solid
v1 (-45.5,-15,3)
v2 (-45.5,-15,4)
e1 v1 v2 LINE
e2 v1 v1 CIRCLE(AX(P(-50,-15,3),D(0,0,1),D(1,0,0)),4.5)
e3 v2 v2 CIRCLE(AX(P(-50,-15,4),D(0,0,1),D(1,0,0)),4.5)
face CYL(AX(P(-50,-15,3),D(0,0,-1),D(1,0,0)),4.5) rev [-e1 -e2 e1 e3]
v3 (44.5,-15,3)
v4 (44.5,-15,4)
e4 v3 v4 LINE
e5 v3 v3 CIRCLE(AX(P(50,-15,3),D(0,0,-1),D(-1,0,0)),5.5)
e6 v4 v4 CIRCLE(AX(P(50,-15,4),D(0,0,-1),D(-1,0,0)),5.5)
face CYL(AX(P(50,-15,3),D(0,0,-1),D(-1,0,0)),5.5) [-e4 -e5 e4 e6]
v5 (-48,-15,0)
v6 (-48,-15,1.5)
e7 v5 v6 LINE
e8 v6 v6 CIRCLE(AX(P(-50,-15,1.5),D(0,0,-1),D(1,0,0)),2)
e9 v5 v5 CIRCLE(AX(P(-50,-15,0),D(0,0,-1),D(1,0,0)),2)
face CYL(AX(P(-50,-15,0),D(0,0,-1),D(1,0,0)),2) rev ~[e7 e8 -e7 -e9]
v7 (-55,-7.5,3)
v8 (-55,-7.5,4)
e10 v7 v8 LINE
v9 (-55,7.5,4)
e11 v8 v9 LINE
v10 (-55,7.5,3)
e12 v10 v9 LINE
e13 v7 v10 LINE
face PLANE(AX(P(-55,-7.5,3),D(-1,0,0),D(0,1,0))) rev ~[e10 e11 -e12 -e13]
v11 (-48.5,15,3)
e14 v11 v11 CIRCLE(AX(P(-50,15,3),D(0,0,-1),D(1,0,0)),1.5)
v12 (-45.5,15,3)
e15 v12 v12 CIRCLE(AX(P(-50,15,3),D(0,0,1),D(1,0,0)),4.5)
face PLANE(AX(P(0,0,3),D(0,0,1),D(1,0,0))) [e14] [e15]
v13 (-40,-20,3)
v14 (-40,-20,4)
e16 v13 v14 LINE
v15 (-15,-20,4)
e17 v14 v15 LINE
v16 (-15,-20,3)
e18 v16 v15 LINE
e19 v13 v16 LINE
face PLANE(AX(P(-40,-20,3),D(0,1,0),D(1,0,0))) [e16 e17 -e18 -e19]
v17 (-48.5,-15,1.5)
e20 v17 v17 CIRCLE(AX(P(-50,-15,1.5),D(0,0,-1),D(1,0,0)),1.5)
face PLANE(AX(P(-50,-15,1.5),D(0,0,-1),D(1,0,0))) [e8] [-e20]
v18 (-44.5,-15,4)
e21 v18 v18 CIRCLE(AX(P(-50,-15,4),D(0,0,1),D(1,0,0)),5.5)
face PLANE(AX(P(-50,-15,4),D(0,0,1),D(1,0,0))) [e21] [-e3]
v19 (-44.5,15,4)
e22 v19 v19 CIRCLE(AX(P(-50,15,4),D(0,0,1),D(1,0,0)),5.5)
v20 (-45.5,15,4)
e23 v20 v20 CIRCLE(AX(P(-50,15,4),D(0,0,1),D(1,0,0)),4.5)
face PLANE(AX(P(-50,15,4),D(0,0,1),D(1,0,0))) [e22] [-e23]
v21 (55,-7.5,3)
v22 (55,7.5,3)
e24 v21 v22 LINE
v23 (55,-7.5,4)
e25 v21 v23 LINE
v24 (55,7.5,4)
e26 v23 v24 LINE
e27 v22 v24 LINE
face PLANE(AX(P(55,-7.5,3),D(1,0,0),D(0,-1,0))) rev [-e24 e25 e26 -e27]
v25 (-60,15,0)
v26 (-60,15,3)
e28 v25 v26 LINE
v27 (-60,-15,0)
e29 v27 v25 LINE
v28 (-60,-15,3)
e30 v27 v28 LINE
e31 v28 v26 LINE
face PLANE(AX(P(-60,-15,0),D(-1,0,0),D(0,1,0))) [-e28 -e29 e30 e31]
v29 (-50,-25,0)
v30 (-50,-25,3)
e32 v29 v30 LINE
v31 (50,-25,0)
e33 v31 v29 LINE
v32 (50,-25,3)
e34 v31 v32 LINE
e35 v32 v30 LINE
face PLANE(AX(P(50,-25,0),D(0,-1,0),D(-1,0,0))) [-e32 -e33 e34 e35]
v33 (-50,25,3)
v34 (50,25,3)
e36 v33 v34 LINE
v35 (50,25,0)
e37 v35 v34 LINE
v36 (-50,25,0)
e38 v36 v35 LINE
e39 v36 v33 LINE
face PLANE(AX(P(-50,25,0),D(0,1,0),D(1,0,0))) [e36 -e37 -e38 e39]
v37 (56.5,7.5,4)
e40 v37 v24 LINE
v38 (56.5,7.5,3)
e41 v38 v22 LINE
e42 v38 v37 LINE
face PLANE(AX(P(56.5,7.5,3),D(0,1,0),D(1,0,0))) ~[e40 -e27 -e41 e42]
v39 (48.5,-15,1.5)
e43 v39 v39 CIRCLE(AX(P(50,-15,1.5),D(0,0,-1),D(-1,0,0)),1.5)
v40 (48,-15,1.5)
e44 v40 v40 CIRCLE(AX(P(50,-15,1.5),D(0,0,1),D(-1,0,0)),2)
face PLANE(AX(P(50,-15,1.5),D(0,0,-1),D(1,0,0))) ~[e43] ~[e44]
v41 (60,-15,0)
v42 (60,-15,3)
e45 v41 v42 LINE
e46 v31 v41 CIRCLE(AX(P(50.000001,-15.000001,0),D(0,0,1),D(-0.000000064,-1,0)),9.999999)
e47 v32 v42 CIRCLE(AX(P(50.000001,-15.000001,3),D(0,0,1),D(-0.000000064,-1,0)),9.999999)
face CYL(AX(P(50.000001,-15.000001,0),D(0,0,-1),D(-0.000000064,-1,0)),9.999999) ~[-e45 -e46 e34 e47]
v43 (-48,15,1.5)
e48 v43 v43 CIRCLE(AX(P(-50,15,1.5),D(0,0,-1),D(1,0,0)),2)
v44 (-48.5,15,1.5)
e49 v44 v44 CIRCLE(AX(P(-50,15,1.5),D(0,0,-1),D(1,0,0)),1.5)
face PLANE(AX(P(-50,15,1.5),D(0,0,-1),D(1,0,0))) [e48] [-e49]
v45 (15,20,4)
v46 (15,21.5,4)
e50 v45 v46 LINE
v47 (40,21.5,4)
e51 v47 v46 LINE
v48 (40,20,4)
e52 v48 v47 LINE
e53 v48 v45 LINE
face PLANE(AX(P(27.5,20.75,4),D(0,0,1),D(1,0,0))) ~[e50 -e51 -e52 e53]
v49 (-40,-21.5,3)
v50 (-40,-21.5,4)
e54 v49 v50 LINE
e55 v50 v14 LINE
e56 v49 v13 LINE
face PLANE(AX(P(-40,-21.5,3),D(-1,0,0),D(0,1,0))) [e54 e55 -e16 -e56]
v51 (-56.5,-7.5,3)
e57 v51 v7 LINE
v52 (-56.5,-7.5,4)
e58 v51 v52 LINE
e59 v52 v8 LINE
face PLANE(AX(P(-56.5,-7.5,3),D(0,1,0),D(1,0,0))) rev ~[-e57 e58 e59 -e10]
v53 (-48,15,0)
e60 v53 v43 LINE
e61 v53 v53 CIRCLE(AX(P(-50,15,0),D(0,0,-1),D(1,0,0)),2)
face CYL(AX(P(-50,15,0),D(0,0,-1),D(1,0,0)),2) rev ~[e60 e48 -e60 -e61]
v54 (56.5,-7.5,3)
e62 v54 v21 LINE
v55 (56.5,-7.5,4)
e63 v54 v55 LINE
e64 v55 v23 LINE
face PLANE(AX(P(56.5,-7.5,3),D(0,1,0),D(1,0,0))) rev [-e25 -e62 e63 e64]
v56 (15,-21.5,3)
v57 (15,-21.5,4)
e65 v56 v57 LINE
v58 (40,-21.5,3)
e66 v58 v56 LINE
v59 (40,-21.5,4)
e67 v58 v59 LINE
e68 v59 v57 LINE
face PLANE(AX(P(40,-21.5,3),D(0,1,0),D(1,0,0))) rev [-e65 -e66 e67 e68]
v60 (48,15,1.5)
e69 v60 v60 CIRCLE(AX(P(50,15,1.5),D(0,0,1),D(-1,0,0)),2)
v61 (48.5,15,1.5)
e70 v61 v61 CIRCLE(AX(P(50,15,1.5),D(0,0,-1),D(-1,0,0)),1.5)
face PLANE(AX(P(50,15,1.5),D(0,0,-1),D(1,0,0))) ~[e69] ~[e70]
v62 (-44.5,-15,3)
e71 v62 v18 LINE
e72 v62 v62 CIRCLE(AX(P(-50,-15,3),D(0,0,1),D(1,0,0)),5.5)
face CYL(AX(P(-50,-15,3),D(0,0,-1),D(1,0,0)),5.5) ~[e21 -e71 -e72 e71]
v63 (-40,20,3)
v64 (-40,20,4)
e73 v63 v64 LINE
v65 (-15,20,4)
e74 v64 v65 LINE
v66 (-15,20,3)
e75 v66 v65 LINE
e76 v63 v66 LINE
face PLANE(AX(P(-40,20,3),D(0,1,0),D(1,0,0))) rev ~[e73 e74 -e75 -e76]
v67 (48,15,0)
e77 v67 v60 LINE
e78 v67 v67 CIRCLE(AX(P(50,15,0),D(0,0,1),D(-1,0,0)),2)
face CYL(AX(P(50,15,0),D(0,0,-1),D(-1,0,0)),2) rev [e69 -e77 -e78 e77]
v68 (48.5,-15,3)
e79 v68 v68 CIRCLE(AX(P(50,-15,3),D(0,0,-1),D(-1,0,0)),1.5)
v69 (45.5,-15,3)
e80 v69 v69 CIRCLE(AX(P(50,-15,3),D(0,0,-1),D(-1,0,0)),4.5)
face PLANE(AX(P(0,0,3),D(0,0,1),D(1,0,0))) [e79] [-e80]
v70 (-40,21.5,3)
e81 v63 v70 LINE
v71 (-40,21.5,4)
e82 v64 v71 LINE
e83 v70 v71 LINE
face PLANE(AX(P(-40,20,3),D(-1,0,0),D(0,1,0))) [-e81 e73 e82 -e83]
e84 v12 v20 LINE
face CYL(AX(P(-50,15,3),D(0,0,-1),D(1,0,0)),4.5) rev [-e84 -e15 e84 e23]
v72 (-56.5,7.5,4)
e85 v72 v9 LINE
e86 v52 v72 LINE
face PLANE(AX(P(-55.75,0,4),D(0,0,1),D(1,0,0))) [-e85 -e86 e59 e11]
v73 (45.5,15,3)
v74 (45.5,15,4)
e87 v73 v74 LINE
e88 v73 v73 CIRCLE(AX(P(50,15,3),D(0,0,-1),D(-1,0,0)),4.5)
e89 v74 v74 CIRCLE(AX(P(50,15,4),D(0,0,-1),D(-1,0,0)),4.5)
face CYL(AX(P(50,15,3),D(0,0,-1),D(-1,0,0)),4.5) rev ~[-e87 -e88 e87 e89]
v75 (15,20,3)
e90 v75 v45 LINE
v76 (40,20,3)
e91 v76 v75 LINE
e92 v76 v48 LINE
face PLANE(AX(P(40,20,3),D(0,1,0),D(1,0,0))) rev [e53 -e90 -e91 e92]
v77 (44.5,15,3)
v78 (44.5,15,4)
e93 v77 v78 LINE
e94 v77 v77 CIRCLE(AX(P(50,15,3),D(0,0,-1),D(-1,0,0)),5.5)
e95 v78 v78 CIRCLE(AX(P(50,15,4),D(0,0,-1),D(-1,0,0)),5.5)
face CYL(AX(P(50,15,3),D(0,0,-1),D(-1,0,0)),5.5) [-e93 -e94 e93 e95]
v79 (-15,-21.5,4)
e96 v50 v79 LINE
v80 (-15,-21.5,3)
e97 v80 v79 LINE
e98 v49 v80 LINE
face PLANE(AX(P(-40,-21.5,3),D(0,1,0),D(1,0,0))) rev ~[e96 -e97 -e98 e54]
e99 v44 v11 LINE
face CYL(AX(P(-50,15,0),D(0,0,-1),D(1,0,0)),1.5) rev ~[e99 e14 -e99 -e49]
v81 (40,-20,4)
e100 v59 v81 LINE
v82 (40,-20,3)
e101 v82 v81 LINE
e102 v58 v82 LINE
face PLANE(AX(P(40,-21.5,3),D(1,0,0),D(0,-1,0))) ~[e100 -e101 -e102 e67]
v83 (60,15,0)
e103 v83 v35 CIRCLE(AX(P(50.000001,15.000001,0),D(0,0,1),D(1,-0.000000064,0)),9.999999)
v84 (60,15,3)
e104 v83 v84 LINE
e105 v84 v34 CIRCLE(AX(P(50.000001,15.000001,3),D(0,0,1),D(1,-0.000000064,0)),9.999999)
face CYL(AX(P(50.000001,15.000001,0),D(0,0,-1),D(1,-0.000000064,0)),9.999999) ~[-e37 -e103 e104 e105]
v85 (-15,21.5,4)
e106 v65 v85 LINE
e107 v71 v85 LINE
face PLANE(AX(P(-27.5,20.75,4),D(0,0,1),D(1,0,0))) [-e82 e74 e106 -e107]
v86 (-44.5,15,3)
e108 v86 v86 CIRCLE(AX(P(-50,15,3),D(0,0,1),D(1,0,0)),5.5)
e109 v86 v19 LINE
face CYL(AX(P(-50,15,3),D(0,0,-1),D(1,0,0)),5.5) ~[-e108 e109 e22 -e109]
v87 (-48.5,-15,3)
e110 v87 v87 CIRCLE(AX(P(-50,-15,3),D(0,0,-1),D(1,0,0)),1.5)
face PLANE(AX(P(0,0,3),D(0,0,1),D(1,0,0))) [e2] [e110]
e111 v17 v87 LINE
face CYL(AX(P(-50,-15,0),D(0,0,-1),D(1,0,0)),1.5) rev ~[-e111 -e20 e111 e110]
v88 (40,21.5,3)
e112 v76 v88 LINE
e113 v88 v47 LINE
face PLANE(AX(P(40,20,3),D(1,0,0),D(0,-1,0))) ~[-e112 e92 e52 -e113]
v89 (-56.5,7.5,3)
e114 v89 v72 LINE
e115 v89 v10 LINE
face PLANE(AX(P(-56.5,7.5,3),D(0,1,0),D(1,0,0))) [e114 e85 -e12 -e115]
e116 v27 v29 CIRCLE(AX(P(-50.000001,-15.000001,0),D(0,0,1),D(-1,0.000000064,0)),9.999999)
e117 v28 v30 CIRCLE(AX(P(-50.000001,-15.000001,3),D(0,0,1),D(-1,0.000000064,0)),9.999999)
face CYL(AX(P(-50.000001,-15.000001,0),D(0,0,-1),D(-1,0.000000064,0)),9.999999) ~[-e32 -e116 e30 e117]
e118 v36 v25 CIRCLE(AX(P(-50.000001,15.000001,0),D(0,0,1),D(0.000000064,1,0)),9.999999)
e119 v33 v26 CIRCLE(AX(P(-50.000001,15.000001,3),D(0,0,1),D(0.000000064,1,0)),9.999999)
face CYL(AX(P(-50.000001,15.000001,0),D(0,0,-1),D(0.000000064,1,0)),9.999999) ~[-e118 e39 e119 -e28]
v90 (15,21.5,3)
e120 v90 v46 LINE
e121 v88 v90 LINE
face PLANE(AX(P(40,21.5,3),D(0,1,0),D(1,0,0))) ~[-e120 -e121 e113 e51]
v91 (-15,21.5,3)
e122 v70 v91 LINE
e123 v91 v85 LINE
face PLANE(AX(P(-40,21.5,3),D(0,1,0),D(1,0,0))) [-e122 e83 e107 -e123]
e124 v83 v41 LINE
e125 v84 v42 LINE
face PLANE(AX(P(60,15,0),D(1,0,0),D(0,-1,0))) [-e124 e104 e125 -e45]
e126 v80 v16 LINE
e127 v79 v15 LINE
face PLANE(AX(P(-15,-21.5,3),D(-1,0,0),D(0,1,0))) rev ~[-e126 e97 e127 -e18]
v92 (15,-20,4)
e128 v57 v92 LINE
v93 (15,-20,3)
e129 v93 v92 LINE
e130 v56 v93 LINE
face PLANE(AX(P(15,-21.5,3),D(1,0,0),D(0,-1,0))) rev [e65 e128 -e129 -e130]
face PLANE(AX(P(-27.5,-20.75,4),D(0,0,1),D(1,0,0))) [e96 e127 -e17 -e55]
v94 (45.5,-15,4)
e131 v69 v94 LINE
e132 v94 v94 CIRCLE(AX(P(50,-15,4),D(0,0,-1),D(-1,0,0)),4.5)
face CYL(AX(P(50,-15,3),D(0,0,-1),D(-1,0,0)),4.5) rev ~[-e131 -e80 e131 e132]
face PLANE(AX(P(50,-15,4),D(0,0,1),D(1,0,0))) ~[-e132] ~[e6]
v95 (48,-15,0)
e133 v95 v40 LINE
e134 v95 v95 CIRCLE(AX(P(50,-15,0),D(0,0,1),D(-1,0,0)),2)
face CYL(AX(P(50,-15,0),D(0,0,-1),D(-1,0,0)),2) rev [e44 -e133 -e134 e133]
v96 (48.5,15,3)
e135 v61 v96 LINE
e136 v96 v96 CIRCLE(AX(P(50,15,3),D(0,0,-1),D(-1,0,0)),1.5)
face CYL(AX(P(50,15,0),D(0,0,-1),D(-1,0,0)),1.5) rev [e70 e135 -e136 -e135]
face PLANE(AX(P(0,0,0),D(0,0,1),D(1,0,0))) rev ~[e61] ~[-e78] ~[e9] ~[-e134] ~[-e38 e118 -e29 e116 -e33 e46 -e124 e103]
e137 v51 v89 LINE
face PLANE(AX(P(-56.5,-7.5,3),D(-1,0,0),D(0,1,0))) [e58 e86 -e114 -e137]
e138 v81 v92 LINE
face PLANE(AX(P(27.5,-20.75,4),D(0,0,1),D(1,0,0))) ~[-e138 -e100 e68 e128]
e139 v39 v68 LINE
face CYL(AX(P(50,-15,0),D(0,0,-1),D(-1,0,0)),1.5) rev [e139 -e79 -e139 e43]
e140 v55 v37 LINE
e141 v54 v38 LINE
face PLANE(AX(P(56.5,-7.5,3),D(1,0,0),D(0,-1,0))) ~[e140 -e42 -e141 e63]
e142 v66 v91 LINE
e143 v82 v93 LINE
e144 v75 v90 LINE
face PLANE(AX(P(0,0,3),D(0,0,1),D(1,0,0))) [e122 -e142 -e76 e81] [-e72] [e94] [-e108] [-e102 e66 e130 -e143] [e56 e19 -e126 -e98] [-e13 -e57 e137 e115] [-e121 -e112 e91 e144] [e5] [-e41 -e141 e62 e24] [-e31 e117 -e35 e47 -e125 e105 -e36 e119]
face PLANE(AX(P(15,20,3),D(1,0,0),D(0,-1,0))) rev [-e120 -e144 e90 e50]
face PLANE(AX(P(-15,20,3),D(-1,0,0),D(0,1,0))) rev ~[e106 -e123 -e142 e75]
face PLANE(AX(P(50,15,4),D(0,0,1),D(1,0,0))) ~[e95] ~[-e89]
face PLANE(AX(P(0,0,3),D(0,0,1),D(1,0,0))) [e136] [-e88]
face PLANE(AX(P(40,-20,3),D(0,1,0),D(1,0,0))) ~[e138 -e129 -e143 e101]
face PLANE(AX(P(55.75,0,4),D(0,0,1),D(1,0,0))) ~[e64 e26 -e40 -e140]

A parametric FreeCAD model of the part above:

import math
import FreeCAD as App
import Part
import Sketcher

V = App.Vector


def add_polygon(sketch, points):
    """Adds a closed chain of lines whose ends are joined by coincident constraints."""
    first, n = sketch.GeometryCount, len(points)
    for a, b in zip(points, points[1:] + points[:1]):
        sketch.addGeometry(Part.LineSegment(App.Vector(*a, 0), App.Vector(*b, 0)), False)
    for i in range(n):
        sketch.addConstraint(Sketcher.Constraint("Coincident", first + i, 2, first + (i + 1) % n, 1))

doc = App.newDocument("Part")
body = doc.addObject("PartDesign::Body", "Body")

# Sketch on XY plane
sketch1 = doc.addObject("Sketcher::SketchObject", "Sketch")
body.addObject(sketch1)
sketch1.AttachmentSupport = (doc.XY_Plane, [""])
sketch1.MapMode = "FlatFace"
sketch1.addGeometry([
    Part.ArcOfCircle(Part.Circle(V(-50, 15, 0), V(0, 0, 1), 10), math.radians(90), math.radians(180)),  # 0
    Part.LineSegment(V(-60, 15, 0), V(-60, -15, 0)),  # 1
    Part.ArcOfCircle(Part.Circle(V(-50, -15, 0), V(0, 0, 1), 10), math.radians(180), math.radians(270)),  # 2
    Part.LineSegment(V(-50, -25, 0), V(50, -25, 0)),  # 3
    Part.ArcOfCircle(Part.Circle(V(50, -15, 0), V(0, 0, 1), 10), math.radians(-90), math.radians(0)),  # 4
    Part.LineSegment(V(60, -15, 0), V(60, 15, 0)),  # 5
    Part.ArcOfCircle(Part.Circle(V(50, 15, 0), V(0, 0, 1), 10), math.radians(0), math.radians(90)),  # 6
    Part.LineSegment(V(50, 25, 0), V(-50, 25, 0)),  # 7
], False)
sketch1.addConstraint([
    Sketcher.Constraint("Tangent", 0, 2, 1, 1),
    Sketcher.Constraint("Tangent", 1, 2, 2, 1),
    Sketcher.Constraint("Tangent", 2, 2, 3, 1),
    Sketcher.Constraint("Tangent", 3, 2, 4, 1),
    Sketcher.Constraint("Tangent", 4, 2, 5, 1),
    Sketcher.Constraint("Tangent", 5, 2, 6, 1),
    Sketcher.Constraint("Tangent", 6, 2, 7, 1),
    Sketcher.Constraint("Tangent", 7, 2, 0, 1),
    Sketcher.Constraint("Vertical", 1),
    Sketcher.Constraint("Horizontal", 3),
    Sketcher.Constraint("Vertical", 5),
    Sketcher.Constraint("Horizontal", 7),
    Sketcher.Constraint("Equal", 0, 2),
    Sketcher.Constraint("Equal", 2, 4),
    Sketcher.Constraint("Equal", 4, 6),
    Sketcher.Constraint("Symmetric", 0, 3, 4, 3, -1, 1),
    Sketcher.Constraint("Radius", 0, 9.999999),
    Sketcher.Constraint("DistanceX", 3, 1, 3, 2, 100.0),
    Sketcher.Constraint("DistanceY", 1, 2, 1, 1, 30.0),
])
pad1 = doc.addObject("PartDesign::Pad", "Pad")
body.addObject(pad1)
pad1.Profile = sketch1
pad1.Length = 3

# Sketch on XY plane
sketch2 = doc.addObject("Sketcher::SketchObject", "Sketch001")
body.addObject(sketch2)
sketch2.AttachmentSupport = (doc.XY_Plane, [""])
sketch2.MapMode = "FlatFace"
sketch2.AttachmentOffset = App.Placement(V(0, 0, 3), App.Rotation())
sketch2.addGeometry(Part.Circle(V(-50, 15, 0), V(0, 0, 1), 5.5), False)  # 0
sketch2.addGeometry(Part.Circle(V(-50, 15, 0), V(0, 0, 1), 4.5), False)  # 1
sketch2.addGeometry(Part.Circle(V(-50, -15, 0), V(0, 0, 1), 5.5), False)  # 2
sketch2.addGeometry(Part.Circle(V(-50, -15, 0), V(0, 0, 1), 4.5), False)  # 3
add_polygon(sketch2, [(-40, 21.5), (-40, 20), (-15, 20), (-15, 21.5)])  # lines 4-7
add_polygon(sketch2, [(-40, -20), (-40, -21.5), (-15, -21.5), (-15, -20)])  # lines 8-11
add_polygon(sketch2, [(-56.5, 7.5), (-56.5, -7.5), (-55, -7.5), (-55, 7.5)])  # lines 12-15
sketch2.addConstraint([
    Sketcher.Constraint("Vertical", 4),
    Sketcher.Constraint("Horizontal", 5),
    Sketcher.Constraint("Vertical", 6),
    Sketcher.Constraint("Horizontal", 7),
    Sketcher.Constraint("Vertical", 8),
    Sketcher.Constraint("Horizontal", 9),
    Sketcher.Constraint("Vertical", 10),
    Sketcher.Constraint("Horizontal", 11),
    Sketcher.Constraint("Vertical", 12),
    Sketcher.Constraint("Horizontal", 13),
    Sketcher.Constraint("Vertical", 14),
    Sketcher.Constraint("Horizontal", 15),
    Sketcher.Constraint("Coincident", 1, 3, 0, 3),
    Sketcher.Constraint("Coincident", 3, 3, 2, 3),
    Sketcher.Constraint("Equal", 0, 2),
    Sketcher.Constraint("Equal", 1, 3),
    Sketcher.Constraint("Symmetric", 0, 3, 2, 3, -1),
    Sketcher.Constraint("Symmetric", 7, 2, 8, 2, -1),
    Sketcher.Constraint("Symmetric", 5, 2, 10, 2, -1),
    Sketcher.Constraint("Equal", 15, 4),
    Sketcher.Constraint("Diameter", 0, 11.0),
    Sketcher.Constraint("Diameter", 1, 9.0),
    Sketcher.Constraint("DistanceX", 5, 1, 5, 2, 25.0),
    Sketcher.Constraint("DistanceY", 12, 2, 12, 1, 15.0),
    Sketcher.Constraint("DistanceX", 13, 1, 13, 2, 1.5),
    Sketcher.Constraint("DistanceX", 0, 3, -1, 1, 50.0),
    Sketcher.Constraint("DistanceY", -1, 1, 0, 3, 15.0),
    Sketcher.Constraint("DistanceX", 4, 2, -1, 1, 40.0),
    Sketcher.Constraint("DistanceY", -1, 1, 4, 2, 20.0),
    Sketcher.Constraint("DistanceX", 13, 2, -1, 1, 55.0),
    Sketcher.Constraint("DistanceY", 8, 2, 12, 2, 14.0),
])
pad2 = doc.addObject("PartDesign::Pad", "Pad001")
body.addObject(pad2)
pad2.Profile = sketch2
pad2.Length = 1

# Sketch on XY plane
sketch3 = doc.addObject("Sketcher::SketchObject", "Sketch002")
body.addObject(sketch3)
sketch3.AttachmentSupport = (doc.XY_Plane, [""])
sketch3.MapMode = "FlatFace"
sketch3.addGeometry([
    Part.Circle(V(-50, -15, 0), V(0, 0, 1), 1.5),
    Part.Circle(V(-50, 15, 0), V(0, 0, 1), 1.5),
], False)
sketch3.addConstraint([
    Sketcher.Constraint("Equal", 0, 1),
    Sketcher.Constraint("Symmetric", 0, 3, 1, 3, -1),
    Sketcher.Constraint("Diameter", 0, 3.0),
    Sketcher.Constraint("DistanceX", 0, 3, -1, 1, 50.0),
    Sketcher.Constraint("DistanceY", 0, 3, -1, 1, 15.0),
])
pocket1 = doc.addObject("PartDesign::Pocket", "Pocket")
body.addObject(pocket1)
pocket1.Profile = sketch3
pocket1.Type = "ThroughAll"
pocket1.Reversed = True

# Sketch on XY plane
sketch4 = doc.addObject("Sketcher::SketchObject", "Sketch003")
body.addObject(sketch4)
sketch4.AttachmentSupport = (doc.XY_Plane, [""])
sketch4.MapMode = "FlatFace"
sketch4.addGeometry([
    Part.Circle(V(-50, -15, 0), V(0, 0, 1), 2),
    Part.Circle(V(-50, 15, 0), V(0, 0, 1), 2),
], False)
sketch4.addConstraint([
    Sketcher.Constraint("Equal", 0, 1),
    Sketcher.Constraint("Symmetric", 0, 3, 1, 3, -1),
    Sketcher.Constraint("Diameter", 0, 4.0),
    Sketcher.Constraint("DistanceX", 0, 3, -1, 1, 50.0),
    Sketcher.Constraint("DistanceY", 0, 3, -1, 1, 15.0),
])
pocket2 = doc.addObject("PartDesign::Pocket", "Pocket001")
body.addObject(pocket2)
pocket2.Profile = sketch4
pocket2.Length = 1.5
pocket2.Reversed = True
doc.recompute()

mirrored = doc.addObject("PartDesign::Mirrored", "Mirrored")
body.addObject(mirrored)
mirrored.Originals = [pad2, pocket1, pocket2]
mirrored.MirrorPlane = (doc.YZ_Plane, [""])
body.Tip = mirrored

doc.recompute()
